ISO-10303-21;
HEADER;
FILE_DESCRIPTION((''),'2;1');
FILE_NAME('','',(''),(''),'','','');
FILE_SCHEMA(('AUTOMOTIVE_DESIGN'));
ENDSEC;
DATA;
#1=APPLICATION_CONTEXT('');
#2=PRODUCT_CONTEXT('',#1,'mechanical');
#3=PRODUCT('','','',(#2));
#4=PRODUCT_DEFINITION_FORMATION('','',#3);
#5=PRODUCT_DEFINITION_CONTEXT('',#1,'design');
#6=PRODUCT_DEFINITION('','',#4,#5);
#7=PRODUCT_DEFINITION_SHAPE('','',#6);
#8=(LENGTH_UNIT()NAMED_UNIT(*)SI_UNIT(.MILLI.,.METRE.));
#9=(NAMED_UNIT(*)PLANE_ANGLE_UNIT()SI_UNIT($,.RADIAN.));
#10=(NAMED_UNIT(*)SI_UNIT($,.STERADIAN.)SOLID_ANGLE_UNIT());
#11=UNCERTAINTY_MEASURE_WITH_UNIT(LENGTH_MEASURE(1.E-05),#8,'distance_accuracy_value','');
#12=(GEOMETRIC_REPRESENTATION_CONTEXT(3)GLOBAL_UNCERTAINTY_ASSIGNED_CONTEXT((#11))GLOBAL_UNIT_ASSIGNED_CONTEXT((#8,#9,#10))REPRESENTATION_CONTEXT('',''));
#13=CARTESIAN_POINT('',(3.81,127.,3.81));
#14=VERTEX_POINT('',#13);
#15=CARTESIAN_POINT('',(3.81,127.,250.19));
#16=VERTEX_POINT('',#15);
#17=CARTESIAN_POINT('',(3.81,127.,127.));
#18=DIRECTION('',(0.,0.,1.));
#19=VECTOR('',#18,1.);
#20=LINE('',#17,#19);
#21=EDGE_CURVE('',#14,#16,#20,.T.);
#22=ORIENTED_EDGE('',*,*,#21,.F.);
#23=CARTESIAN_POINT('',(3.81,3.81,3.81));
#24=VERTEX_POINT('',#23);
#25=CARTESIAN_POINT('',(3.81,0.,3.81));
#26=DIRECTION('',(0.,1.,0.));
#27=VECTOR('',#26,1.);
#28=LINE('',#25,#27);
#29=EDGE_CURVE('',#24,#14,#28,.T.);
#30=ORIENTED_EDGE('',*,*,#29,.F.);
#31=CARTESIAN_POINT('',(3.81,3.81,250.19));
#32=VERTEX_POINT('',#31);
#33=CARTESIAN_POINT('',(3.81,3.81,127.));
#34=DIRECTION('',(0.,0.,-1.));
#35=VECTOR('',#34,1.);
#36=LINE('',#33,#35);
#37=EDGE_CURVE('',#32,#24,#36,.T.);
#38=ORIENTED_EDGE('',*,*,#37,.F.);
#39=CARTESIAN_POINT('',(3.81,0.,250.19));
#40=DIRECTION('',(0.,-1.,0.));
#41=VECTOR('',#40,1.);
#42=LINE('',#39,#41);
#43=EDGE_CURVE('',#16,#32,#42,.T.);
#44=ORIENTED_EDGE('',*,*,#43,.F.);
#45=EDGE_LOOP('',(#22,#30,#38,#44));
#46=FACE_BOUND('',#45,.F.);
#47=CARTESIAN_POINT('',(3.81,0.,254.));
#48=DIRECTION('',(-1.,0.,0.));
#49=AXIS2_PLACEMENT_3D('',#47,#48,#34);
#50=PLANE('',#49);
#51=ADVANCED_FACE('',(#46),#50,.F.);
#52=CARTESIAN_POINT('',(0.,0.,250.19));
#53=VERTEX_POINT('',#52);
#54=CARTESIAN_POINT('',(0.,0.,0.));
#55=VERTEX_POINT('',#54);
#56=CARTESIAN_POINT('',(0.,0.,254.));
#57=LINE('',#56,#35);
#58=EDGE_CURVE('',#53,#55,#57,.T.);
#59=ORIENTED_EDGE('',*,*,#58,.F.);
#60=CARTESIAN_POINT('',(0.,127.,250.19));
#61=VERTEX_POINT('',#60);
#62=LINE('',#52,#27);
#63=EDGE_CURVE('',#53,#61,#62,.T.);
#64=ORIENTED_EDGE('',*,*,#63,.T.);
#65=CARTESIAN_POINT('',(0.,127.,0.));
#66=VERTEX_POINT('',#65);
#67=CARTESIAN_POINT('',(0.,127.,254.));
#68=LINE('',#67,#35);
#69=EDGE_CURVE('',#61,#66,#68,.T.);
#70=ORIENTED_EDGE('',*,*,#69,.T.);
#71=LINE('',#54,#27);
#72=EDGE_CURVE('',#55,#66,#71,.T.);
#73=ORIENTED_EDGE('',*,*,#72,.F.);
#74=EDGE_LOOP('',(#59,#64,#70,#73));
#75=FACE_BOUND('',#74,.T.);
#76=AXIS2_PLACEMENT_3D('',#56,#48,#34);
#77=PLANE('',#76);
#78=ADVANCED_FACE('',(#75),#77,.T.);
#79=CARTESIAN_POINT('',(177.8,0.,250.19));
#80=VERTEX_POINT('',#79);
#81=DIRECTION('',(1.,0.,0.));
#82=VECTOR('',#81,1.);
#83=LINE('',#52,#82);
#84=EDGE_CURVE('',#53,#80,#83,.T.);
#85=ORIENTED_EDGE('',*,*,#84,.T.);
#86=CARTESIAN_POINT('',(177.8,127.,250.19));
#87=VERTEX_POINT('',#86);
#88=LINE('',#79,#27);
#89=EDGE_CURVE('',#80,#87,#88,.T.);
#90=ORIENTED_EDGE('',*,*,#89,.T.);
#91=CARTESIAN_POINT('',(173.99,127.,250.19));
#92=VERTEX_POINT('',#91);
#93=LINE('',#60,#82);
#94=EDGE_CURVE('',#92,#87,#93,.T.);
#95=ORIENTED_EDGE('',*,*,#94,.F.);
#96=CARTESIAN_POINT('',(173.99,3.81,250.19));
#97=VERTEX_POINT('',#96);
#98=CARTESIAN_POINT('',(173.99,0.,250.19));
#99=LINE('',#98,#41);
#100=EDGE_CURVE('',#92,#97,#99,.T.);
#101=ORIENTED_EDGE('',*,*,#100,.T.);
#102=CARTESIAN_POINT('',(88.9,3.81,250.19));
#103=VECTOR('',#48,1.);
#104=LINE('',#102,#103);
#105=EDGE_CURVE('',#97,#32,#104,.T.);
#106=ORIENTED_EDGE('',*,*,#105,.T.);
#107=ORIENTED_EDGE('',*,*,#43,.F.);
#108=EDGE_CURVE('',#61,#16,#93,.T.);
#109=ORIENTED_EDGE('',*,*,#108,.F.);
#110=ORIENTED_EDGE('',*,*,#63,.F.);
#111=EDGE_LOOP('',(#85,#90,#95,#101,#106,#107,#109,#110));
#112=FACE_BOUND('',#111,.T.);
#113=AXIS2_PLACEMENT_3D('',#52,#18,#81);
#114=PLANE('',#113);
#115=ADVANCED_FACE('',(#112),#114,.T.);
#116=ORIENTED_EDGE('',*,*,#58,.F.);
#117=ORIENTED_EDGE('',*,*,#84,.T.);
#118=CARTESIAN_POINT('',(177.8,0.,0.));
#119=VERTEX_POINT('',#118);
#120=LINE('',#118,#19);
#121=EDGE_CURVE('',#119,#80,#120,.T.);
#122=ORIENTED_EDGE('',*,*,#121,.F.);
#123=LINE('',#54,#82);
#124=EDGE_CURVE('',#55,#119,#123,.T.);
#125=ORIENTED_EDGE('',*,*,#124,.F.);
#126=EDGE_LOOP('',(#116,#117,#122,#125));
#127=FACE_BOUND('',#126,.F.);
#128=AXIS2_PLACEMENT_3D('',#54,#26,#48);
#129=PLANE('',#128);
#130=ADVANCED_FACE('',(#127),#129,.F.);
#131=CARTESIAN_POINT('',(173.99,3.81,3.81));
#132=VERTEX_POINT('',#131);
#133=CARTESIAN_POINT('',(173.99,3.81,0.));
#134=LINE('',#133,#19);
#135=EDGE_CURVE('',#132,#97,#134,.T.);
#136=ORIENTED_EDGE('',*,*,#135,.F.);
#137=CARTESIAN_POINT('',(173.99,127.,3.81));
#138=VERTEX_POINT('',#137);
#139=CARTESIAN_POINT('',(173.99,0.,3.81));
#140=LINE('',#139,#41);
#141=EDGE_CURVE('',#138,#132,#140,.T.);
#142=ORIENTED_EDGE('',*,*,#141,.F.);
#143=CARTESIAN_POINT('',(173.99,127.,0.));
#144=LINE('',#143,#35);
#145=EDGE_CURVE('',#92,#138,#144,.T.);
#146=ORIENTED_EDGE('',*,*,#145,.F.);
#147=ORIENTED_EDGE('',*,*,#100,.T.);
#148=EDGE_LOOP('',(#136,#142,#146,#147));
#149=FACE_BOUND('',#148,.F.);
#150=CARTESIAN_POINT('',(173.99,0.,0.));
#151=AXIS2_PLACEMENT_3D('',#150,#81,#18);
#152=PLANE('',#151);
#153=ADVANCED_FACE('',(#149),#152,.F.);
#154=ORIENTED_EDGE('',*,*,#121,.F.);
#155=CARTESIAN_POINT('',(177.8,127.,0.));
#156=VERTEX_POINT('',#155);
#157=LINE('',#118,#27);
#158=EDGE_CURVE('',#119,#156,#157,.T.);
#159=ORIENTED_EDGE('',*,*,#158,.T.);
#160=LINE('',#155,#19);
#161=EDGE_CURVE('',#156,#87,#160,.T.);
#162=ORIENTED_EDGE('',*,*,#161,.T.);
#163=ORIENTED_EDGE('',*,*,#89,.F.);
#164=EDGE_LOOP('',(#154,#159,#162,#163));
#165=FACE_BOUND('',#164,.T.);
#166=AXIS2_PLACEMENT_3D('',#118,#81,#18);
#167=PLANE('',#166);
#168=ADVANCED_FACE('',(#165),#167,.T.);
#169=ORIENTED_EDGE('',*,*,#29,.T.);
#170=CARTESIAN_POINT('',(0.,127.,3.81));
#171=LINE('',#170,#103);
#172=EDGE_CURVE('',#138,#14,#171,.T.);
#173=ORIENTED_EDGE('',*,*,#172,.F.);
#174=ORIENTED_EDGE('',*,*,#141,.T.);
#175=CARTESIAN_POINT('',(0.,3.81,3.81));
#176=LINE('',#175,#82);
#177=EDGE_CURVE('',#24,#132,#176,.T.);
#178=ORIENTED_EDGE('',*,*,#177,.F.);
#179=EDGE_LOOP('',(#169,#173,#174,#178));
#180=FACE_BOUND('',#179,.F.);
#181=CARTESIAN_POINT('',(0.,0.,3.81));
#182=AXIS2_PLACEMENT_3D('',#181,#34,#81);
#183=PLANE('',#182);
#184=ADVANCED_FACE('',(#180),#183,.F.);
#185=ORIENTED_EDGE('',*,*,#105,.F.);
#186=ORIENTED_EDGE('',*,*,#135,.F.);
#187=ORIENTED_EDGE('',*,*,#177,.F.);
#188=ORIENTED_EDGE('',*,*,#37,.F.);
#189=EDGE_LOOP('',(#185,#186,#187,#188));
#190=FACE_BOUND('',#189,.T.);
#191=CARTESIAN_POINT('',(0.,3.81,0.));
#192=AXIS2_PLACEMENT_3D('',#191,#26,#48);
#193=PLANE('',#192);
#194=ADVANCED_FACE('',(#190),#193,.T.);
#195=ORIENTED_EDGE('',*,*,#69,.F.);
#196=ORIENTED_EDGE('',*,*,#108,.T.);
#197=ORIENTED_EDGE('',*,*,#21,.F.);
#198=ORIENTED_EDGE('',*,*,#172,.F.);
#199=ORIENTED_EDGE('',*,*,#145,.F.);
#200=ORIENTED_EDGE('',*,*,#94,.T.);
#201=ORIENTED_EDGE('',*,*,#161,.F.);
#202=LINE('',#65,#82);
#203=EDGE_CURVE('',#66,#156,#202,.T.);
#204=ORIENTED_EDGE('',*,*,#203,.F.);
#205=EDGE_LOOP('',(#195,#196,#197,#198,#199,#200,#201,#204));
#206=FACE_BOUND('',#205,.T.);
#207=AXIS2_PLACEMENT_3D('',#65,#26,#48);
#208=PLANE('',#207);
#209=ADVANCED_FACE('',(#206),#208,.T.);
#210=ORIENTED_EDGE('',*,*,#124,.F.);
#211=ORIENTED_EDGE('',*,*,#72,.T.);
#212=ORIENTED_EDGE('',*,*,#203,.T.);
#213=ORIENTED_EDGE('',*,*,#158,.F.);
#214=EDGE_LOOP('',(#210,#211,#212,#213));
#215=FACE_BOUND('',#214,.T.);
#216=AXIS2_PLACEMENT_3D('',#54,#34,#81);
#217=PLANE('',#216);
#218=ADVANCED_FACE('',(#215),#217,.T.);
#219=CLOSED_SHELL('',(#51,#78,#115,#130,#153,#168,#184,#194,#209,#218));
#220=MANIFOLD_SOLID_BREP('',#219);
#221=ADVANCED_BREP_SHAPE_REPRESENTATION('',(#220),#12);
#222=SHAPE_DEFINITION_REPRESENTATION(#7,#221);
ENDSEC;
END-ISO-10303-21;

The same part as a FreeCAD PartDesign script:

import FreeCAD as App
import Part
import Sketcher
from FreeCAD import Vector
Q = App.Units.Quantity


def faces_at(feature, points):
    """Names of the faces that lie closest to the given points."""
    faces = feature.Shape.Faces
    near = lambda p: min(range(len(faces)), key=lambda i: faces[i].distToShape(Part.Vertex(*p))[0])
    return sorted({f"Face{near(p) + 1}" for p in points})

doc = App.newDocument("Part")
body = doc.addObject("PartDesign::Body", "Body")

# Sketch on XZ plane
sketch1 = body.newObject("Sketcher::SketchObject", "Sketch")
sketch1.AttachmentSupport = (doc.getObject("XZ_Plane"), [""])
sketch1.MapMode = "FlatFace"
sketch1.addGeometry([
    Part.LineSegment(Vector(178, 0, 0), Vector(0, 0, 0)),
    Part.LineSegment(Vector(0, 0, 0), Vector(0, 254, 0)),
    Part.LineSegment(Vector(0, 254, 0), Vector(178, 254, 0)),
    Part.LineSegment(Vector(178, 254, 0), Vector(178, 0, 0)),
], False)
sketch1.addConstraint([
    Sketcher.Constraint("Coincident", 0, 2, 1, 1),
    Sketcher.Constraint("Coincident", 1, 2, 2, 1),
    Sketcher.Constraint("Coincident", 2, 2, 3, 1),
    Sketcher.Constraint("Coincident", 3, 2, 0, 1),
    Sketcher.Constraint("Horizontal", 0),
    Sketcher.Constraint("Vertical", 1),
    Sketcher.Constraint("Horizontal", 2),
    Sketcher.Constraint("Vertical", 3),
    Sketcher.Constraint("Coincident", 0, 2, -1, 1),
    Sketcher.Constraint("DistanceX", 0, 2, 0, 1, Q("7 in")),
    Sketcher.Constraint("DistanceY", 1, 1, 1, 2, Q("10 in")),
])
pad1 = body.newObject("PartDesign::Pad", "Pad")
pad1.Profile = sketch1
pad1.Length = Q("5 in")
pad1.Reversed = True
doc.recompute()

thickness = body.newObject("PartDesign::Thickness", "Thickness")
thickness.Base = (pad1, faces_at(pad1, [(118.533, 127, 169.333)]))
thickness.Value = Q("0.15 in")
thickness.Reversed = True
thickness.Join = "Intersection"

# Sketch on XY plane
sketch2 = body.newObject("Sketcher::SketchObject", "Sketch001")
sketch2.AttachmentSupport = (doc.getObject("XY_Plane"), [""])
sketch2.MapMode = "FlatFace"
sketch2.AttachmentOffset = App.Placement(Vector(0, 0, 10 * 25.4), App.Rotation())
sketch2.addGeometry([
    Part.LineSegment(Vector(0, 127, 0), Vector(0, 0, 0)),
    Part.LineSegment(Vector(0, 0, 0), Vector(178, 0, 0)),
    Part.LineSegment(Vector(178, 0, 0), Vector(178, 127, 0)),
    Part.LineSegment(Vector(178, 127, 0), Vector(0, 127, 0)),
], False)
sketch2.addConstraint([
    Sketcher.Constraint("Coincident", 0, 2, 1, 1),
    Sketcher.Constraint("Coincident", 1, 2, 2, 1),
    Sketcher.Constraint("Coincident", 2, 2, 3, 1),
    Sketcher.Constraint("Coincident", 3, 2, 0, 1),
    Sketcher.Constraint("Vertical", 0),
    Sketcher.Constraint("Horizontal", 1),
    Sketcher.Constraint("Vertical", 2),
    Sketcher.Constraint("Horizontal", 3),
    Sketcher.Constraint("Coincident", 0, 2, -1, 1),
    Sketcher.Constraint("DistanceX", 1, 1, 1, 2, Q("7 in")),
    Sketcher.Constraint("DistanceY", 0, 2, 0, 1, Q("5 in")),
])
pocket1 = body.newObject("PartDesign::Pocket", "Pocket")
pocket1.Profile = sketch2
pocket1.Length = Q("0.15 in")

doc.recompute()
